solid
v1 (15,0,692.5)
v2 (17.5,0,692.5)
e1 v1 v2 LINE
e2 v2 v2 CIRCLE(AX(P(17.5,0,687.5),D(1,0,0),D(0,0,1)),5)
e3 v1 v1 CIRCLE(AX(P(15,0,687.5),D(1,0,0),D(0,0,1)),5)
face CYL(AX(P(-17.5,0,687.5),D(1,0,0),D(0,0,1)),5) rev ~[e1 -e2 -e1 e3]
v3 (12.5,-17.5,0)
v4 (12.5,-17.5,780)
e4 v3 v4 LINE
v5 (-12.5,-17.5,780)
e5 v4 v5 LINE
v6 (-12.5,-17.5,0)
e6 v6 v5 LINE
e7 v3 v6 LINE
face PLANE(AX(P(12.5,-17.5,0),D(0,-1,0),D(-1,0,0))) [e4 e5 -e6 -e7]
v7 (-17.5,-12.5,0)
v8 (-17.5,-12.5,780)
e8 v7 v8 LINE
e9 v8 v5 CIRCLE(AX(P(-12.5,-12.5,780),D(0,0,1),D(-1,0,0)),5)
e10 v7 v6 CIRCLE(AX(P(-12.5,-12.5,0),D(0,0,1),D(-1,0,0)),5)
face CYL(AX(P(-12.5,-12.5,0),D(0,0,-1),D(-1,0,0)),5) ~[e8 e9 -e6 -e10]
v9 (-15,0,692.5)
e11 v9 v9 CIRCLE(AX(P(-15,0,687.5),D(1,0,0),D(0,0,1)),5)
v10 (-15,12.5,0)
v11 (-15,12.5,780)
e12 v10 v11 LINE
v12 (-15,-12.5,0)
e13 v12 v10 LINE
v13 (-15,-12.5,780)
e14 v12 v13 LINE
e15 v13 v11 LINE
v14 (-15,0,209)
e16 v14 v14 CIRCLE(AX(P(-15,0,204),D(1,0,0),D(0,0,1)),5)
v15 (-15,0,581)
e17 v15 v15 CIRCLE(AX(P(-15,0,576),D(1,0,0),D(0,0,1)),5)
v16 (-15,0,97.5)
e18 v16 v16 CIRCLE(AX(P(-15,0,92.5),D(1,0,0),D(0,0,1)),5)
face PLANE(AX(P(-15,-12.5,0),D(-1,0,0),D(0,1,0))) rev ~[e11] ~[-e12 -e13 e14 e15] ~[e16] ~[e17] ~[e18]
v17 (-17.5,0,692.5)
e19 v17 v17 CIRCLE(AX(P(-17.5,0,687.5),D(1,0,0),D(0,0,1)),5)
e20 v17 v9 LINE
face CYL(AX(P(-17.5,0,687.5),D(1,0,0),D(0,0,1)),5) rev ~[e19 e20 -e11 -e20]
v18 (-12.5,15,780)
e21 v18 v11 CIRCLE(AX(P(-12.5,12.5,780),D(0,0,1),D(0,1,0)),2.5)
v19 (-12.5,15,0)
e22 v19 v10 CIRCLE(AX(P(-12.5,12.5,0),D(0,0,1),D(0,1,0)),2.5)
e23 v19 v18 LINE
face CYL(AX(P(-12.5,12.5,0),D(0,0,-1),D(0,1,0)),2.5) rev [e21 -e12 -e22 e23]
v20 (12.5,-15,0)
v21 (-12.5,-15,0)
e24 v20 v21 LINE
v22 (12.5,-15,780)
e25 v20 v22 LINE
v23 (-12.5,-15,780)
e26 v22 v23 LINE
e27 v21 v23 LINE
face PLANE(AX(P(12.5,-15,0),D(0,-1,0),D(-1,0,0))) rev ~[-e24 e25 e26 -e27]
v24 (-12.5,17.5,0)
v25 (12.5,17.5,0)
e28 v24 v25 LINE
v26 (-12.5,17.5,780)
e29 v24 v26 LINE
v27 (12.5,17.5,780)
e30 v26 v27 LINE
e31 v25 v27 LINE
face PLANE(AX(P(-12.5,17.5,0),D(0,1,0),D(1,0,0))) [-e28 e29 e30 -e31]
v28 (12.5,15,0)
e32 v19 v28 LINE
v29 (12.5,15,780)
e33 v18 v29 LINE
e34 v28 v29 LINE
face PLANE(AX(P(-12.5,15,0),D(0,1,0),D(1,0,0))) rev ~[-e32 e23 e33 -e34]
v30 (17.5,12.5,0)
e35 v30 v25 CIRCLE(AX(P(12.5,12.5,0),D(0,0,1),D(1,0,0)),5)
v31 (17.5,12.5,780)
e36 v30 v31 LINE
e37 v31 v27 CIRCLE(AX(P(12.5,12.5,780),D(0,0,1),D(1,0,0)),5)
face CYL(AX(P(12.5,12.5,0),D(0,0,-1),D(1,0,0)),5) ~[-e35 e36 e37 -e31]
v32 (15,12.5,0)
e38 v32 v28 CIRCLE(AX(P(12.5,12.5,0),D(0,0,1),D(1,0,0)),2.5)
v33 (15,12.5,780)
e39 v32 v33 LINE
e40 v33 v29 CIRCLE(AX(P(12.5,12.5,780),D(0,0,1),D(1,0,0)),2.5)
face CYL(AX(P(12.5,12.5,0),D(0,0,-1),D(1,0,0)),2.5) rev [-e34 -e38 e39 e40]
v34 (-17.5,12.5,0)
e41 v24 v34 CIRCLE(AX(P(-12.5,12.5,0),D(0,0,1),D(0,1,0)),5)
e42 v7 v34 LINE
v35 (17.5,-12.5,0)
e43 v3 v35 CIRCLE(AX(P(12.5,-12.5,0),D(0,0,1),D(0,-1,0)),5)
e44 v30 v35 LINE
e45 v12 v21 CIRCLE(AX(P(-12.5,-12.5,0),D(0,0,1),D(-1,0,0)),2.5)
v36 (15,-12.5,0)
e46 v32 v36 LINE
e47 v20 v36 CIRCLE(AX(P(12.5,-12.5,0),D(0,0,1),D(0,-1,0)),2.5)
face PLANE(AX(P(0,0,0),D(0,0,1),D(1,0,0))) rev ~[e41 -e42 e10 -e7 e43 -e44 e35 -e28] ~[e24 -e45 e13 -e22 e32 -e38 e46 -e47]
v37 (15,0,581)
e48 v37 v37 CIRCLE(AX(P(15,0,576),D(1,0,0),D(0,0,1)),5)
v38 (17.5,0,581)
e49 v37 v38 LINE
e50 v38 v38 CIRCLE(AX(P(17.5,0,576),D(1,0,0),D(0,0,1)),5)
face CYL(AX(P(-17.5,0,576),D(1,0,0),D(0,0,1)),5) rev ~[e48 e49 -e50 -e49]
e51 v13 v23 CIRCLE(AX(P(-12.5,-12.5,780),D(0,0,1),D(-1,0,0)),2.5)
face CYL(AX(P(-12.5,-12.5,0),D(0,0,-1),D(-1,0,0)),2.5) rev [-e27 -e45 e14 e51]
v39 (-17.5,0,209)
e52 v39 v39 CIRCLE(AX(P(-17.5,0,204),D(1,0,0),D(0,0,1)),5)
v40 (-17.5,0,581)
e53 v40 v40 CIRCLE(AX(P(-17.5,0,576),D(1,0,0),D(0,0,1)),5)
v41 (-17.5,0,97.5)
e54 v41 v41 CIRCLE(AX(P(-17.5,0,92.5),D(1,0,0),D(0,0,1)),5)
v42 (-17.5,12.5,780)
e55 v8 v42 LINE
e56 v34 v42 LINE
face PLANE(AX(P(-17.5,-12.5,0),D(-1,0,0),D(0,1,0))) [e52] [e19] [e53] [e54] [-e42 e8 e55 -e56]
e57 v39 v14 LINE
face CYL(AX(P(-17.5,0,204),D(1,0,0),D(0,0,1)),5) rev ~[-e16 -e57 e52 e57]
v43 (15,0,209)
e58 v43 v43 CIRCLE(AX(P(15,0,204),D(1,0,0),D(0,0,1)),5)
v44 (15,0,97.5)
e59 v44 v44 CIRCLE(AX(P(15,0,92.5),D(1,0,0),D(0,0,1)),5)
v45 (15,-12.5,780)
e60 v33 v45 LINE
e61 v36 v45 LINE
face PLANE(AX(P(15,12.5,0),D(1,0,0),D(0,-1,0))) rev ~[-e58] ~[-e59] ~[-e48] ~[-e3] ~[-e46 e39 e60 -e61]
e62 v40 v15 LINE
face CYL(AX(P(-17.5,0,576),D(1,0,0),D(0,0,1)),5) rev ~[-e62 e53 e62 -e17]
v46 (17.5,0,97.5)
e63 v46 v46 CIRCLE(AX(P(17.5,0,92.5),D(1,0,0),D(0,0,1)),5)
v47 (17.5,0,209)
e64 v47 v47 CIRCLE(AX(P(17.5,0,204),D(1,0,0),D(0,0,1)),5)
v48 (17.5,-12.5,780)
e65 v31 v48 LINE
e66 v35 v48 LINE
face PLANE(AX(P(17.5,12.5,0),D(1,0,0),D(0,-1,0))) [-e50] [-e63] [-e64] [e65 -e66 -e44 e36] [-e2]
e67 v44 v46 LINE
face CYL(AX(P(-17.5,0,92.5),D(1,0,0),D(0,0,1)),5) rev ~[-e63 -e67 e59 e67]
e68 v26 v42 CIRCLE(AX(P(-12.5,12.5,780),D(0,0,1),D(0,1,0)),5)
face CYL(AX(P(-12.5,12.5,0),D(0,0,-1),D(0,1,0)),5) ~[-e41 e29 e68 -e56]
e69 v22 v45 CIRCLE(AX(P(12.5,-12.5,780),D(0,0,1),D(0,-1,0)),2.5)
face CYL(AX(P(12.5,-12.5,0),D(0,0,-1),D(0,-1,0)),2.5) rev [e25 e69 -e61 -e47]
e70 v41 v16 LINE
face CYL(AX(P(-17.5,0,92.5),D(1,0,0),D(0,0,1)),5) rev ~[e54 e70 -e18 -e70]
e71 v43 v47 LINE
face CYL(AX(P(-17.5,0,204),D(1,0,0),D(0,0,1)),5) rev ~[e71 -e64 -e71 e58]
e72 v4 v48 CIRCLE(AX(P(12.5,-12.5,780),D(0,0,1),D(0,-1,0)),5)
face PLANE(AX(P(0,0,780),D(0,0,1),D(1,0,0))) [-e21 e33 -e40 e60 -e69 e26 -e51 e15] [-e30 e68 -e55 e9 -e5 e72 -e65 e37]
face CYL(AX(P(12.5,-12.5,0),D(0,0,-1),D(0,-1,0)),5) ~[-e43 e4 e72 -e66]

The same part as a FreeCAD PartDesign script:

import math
import FreeCAD as App
import Part
import Sketcher
from FreeCAD import Vector
Q = App.Units.Quantity

doc = App.newDocument("Part")
body = doc.addObject("PartDesign::Body", "Body")

sketch1 = body.newObject("Sketcher::SketchObject", "Sketch")
sketch1.AttachmentSupport = (doc.getObject("XY_Plane"), [""])
sketch1.MapMode = "FlatFace"
sketch1.addGeometry(Part.LineSegment(Vector(-17.5, 12.5, 0), Vector(-17.5, -12.5, 0)), False)
sketch1.addGeometry(Part.ArcOfCircle(Part.Circle(Vector(-12.5, -12.5, 0), Vector(0, 0, 1), 5), math.radians(180), math.radians(270)), False)
sketch1.addGeometry(Part.LineSegment(Vector(-12.5, -17.5, 0), Vector(12.5, -17.5, 0)), False)
sketch1.addGeometry(Part.ArcOfCircle(Part.Circle(Vector(12.5, -12.5, 0), Vector(0, 0, 1), 5), math.radians(-90), math.radians(0)), False)
sketch1.addGeometry(Part.LineSegment(Vector(17.5, -12.5, 0), Vector(17.5, 12.5, 0)), False)
sketch1.addGeometry(Part.ArcOfCircle(Part.Circle(Vector(12.5, 12.5, 0), Vector(0, 0, 1), 5), math.radians(0), math.radians(90)), False)
sketch1.addGeometry(Part.LineSegment(Vector(12.5, 17.5, 0), Vector(-12.5, 17.5, 0)), False)
sketch1.addGeometry(Part.ArcOfCircle(Part.Circle(Vector(-12.5, 12.5, 0), Vector(0, 0, 1), 5), math.radians(90), math.radians(180)), False)
sketch1.addGeometry(Part.ArcOfCircle(Part.Circle(Vector(-12.5, 12.5, 0), Vector(0, 0, 1), 2.5), math.radians(90), math.radians(180)), False)
sketch1.addGeometry(Part.LineSegment(Vector(-12.5, 15, 0), Vector(12.5, 15, 0)), False)
sketch1.addGeometry(Part.ArcOfCircle(Part.Circle(Vector(12.5, 12.5, 0), Vector(0, 0, 1), 2.5), math.radians(0), math.radians(90)), False)
sketch1.addGeometry(Part.LineSegment(Vector(15, 12.5, 0), Vector(15, -12.5, 0)), False)
sketch1.addGeometry(Part.ArcOfCircle(Part.Circle(Vector(12.5, -12.5, 0), Vector(0, 0, 1), 2.5), math.radians(-90), math.radians(0)), False)
sketch1.addGeometry(Part.LineSegment(Vector(12.5, -15, 0), Vector(-12.5, -15, 0)), False)
sketch1.addGeometry(Part.ArcOfCircle(Part.Circle(Vector(-12.5, -12.5, 0), Vector(0, 0, 1), 2.5), math.radians(180), math.radians(270)), False)
sketch1.addGeometry(Part.LineSegment(Vector(-15, -12.5, 0), Vector(-15, 12.5, 0)), False)
sketch1.addConstraint(Sketcher.Constraint("Tangent", 0, 2, 1, 1))
sketch1.addConstraint(Sketcher.Constraint("Tangent", 1, 2, 2, 1))
sketch1.addConstraint(Sketcher.Constraint("Tangent", 2, 2, 3, 1))
sketch1.addConstraint(Sketcher.Constraint("Tangent", 3, 2, 4, 1))
sketch1.addConstraint(Sketcher.Constraint("Tangent", 4, 2, 5, 1))
sketch1.addConstraint(Sketcher.Constraint("Tangent", 5, 2, 6, 1))
sketch1.addConstraint(Sketcher.Constraint("Tangent", 6, 2, 7, 1))
sketch1.addConstraint(Sketcher.Constraint("Tangent", 7, 2, 0, 1))
sketch1.addConstraint(Sketcher.Constraint("Tangent", 8, 1, 9, 1))
sketch1.addConstraint(Sketcher.Constraint("Tangent", 9, 2, 10, 2))
sketch1.addConstraint(Sketcher.Constraint("Tangent", 10, 1, 11, 1))
sketch1.addConstraint(Sketcher.Constraint("Tangent", 11, 2, 12, 2))
sketch1.addConstraint(Sketcher.Constraint("Tangent", 12, 1, 13, 1))
sketch1.addConstraint(Sketcher.Constraint("Tangent", 13, 2, 14, 2))
sketch1.addConstraint(Sketcher.Constraint("Tangent", 14, 1, 15, 1))
sketch1.addConstraint(Sketcher.Constraint("Tangent", 15, 2, 8, 2))
sketch1.addConstraint(Sketcher.Constraint("Vertical", 0))
sketch1.addConstraint(Sketcher.Constraint("Horizontal", 2))
sketch1.addConstraint(Sketcher.Constraint("Vertical", 4))
sketch1.addConstraint(Sketcher.Constraint("Horizontal", 6))
sketch1.addConstraint(Sketcher.Constraint("Horizontal", 9))
sketch1.addConstraint(Sketcher.Constraint("Vertical", 11))
sketch1.addConstraint(Sketcher.Constraint("Horizontal", 13))
sketch1.addConstraint(Sketcher.Constraint("Vertical", 15))
sketch1.addConstraint(Sketcher.Constraint("Coincident", 8, 3, 7, 3))
sketch1.addConstraint(Sketcher.Constraint("Coincident", 10, 3, 5, 3))
sketch1.addConstraint(Sketcher.Constraint("Coincident", 12, 3, 3, 3))
sketch1.addConstraint(Sketcher.Constraint("Equal", 1, 3))
sketch1.addConstraint(Sketcher.Constraint("Equal", 3, 5))
sketch1.addConstraint(Sketcher.Constraint("Equal", 5, 7))
sketch1.addConstraint(Sketcher.Constraint("Equal", 12, 14))
sketch1.addConstraint(Sketcher.Constraint("Symmetric", 1, 3, 5, 3, -1, 1))
sketch1.addConstraint(Sketcher.Constraint("Equal", 13, 0))
sketch1.addConstraint(Sketcher.Constraint("Radius", 1, Q("5 mm")))
sketch1.addConstraint(Sketcher.Constraint("Radius", 8, Q("2.5 mm")))
sketch1.addConstraint(Sketcher.Constraint("DistanceX", 0, 2, -1, 1, Q("17.5 mm")))
pad1 = body.newObject("PartDesign::Pad", "Pad")
pad1.Profile = sketch1
pad1.Length = 780

sketch2 = body.newObject("Sketcher::SketchObject", "Sketch001")
sketch2.AttachmentSupport = (doc.getObject("YZ_Plane"), [""])
sketch2.MapMode = "FlatFace"
sketch2.AttachmentOffset = App.Placement(Vector(0, 0, -17.5), App.Rotation())
sketch2.addGeometry(Part.Circle(Vector(0, 92, 0), Vector(0, 0, 1), 5), False)
sketch2.addGeometry(Part.Circle(Vector(0, 204, 0), Vector(0, 0, 1), 5), False)
sketch2.addGeometry(Part.Circle(Vector(0, 576, 0), Vector(0, 0, 1), 5), False)
sketch2.addGeometry(Part.Circle(Vector(0, 688, 0), Vector(0, 0, 1), 5), False)
sketch2.addConstraint(Sketcher.Constraint("Equal", 0, 1))
sketch2.addConstraint(Sketcher.Constraint("Equal", 1, 2))
sketch2.addConstraint(Sketcher.Constraint("Equal", 2, 3))
sketch2.addConstraint(Sketcher.Constraint("PointOnObject", 0, 3, -2))
sketch2.addConstraint(Sketcher.Constraint("PointOnObject", 1, 3, -2))
sketch2.addConstraint(Sketcher.Constraint("PointOnObject", 2, 3, -2))
sketch2.addConstraint(Sketcher.Constraint("PointOnObject", 3, 3, -2))
sketch2.addConstraint(Sketcher.Constraint("Diameter", 0, Q("10 mm")))
sketch2.addConstraint(Sketcher.Constraint("DistanceY", -1, 1, 1, 3, Q("204 mm")))
sketch2.addConstraint(Sketcher.Constraint("DistanceY", -1, 1, 2, 3, Q("576 mm")))
sketch2.addConstraint(Sketcher.Constraint("DistanceY", 0, 3, 3, 3, Q("595 mm")))
sketch2.addConstraint(Sketcher.Constraint("DistanceY", -1, 1, 0, 3, Q("92.5 mm")))
doc.recompute()
hole = body.newObject("PartDesign::Hole", "Hole")
hole.Profile = sketch2
hole.ThreadType = "None"
hole.Diameter = 10
hole.DepthType = "ThroughAll"
hole.Reversed = True

doc.recompute()
